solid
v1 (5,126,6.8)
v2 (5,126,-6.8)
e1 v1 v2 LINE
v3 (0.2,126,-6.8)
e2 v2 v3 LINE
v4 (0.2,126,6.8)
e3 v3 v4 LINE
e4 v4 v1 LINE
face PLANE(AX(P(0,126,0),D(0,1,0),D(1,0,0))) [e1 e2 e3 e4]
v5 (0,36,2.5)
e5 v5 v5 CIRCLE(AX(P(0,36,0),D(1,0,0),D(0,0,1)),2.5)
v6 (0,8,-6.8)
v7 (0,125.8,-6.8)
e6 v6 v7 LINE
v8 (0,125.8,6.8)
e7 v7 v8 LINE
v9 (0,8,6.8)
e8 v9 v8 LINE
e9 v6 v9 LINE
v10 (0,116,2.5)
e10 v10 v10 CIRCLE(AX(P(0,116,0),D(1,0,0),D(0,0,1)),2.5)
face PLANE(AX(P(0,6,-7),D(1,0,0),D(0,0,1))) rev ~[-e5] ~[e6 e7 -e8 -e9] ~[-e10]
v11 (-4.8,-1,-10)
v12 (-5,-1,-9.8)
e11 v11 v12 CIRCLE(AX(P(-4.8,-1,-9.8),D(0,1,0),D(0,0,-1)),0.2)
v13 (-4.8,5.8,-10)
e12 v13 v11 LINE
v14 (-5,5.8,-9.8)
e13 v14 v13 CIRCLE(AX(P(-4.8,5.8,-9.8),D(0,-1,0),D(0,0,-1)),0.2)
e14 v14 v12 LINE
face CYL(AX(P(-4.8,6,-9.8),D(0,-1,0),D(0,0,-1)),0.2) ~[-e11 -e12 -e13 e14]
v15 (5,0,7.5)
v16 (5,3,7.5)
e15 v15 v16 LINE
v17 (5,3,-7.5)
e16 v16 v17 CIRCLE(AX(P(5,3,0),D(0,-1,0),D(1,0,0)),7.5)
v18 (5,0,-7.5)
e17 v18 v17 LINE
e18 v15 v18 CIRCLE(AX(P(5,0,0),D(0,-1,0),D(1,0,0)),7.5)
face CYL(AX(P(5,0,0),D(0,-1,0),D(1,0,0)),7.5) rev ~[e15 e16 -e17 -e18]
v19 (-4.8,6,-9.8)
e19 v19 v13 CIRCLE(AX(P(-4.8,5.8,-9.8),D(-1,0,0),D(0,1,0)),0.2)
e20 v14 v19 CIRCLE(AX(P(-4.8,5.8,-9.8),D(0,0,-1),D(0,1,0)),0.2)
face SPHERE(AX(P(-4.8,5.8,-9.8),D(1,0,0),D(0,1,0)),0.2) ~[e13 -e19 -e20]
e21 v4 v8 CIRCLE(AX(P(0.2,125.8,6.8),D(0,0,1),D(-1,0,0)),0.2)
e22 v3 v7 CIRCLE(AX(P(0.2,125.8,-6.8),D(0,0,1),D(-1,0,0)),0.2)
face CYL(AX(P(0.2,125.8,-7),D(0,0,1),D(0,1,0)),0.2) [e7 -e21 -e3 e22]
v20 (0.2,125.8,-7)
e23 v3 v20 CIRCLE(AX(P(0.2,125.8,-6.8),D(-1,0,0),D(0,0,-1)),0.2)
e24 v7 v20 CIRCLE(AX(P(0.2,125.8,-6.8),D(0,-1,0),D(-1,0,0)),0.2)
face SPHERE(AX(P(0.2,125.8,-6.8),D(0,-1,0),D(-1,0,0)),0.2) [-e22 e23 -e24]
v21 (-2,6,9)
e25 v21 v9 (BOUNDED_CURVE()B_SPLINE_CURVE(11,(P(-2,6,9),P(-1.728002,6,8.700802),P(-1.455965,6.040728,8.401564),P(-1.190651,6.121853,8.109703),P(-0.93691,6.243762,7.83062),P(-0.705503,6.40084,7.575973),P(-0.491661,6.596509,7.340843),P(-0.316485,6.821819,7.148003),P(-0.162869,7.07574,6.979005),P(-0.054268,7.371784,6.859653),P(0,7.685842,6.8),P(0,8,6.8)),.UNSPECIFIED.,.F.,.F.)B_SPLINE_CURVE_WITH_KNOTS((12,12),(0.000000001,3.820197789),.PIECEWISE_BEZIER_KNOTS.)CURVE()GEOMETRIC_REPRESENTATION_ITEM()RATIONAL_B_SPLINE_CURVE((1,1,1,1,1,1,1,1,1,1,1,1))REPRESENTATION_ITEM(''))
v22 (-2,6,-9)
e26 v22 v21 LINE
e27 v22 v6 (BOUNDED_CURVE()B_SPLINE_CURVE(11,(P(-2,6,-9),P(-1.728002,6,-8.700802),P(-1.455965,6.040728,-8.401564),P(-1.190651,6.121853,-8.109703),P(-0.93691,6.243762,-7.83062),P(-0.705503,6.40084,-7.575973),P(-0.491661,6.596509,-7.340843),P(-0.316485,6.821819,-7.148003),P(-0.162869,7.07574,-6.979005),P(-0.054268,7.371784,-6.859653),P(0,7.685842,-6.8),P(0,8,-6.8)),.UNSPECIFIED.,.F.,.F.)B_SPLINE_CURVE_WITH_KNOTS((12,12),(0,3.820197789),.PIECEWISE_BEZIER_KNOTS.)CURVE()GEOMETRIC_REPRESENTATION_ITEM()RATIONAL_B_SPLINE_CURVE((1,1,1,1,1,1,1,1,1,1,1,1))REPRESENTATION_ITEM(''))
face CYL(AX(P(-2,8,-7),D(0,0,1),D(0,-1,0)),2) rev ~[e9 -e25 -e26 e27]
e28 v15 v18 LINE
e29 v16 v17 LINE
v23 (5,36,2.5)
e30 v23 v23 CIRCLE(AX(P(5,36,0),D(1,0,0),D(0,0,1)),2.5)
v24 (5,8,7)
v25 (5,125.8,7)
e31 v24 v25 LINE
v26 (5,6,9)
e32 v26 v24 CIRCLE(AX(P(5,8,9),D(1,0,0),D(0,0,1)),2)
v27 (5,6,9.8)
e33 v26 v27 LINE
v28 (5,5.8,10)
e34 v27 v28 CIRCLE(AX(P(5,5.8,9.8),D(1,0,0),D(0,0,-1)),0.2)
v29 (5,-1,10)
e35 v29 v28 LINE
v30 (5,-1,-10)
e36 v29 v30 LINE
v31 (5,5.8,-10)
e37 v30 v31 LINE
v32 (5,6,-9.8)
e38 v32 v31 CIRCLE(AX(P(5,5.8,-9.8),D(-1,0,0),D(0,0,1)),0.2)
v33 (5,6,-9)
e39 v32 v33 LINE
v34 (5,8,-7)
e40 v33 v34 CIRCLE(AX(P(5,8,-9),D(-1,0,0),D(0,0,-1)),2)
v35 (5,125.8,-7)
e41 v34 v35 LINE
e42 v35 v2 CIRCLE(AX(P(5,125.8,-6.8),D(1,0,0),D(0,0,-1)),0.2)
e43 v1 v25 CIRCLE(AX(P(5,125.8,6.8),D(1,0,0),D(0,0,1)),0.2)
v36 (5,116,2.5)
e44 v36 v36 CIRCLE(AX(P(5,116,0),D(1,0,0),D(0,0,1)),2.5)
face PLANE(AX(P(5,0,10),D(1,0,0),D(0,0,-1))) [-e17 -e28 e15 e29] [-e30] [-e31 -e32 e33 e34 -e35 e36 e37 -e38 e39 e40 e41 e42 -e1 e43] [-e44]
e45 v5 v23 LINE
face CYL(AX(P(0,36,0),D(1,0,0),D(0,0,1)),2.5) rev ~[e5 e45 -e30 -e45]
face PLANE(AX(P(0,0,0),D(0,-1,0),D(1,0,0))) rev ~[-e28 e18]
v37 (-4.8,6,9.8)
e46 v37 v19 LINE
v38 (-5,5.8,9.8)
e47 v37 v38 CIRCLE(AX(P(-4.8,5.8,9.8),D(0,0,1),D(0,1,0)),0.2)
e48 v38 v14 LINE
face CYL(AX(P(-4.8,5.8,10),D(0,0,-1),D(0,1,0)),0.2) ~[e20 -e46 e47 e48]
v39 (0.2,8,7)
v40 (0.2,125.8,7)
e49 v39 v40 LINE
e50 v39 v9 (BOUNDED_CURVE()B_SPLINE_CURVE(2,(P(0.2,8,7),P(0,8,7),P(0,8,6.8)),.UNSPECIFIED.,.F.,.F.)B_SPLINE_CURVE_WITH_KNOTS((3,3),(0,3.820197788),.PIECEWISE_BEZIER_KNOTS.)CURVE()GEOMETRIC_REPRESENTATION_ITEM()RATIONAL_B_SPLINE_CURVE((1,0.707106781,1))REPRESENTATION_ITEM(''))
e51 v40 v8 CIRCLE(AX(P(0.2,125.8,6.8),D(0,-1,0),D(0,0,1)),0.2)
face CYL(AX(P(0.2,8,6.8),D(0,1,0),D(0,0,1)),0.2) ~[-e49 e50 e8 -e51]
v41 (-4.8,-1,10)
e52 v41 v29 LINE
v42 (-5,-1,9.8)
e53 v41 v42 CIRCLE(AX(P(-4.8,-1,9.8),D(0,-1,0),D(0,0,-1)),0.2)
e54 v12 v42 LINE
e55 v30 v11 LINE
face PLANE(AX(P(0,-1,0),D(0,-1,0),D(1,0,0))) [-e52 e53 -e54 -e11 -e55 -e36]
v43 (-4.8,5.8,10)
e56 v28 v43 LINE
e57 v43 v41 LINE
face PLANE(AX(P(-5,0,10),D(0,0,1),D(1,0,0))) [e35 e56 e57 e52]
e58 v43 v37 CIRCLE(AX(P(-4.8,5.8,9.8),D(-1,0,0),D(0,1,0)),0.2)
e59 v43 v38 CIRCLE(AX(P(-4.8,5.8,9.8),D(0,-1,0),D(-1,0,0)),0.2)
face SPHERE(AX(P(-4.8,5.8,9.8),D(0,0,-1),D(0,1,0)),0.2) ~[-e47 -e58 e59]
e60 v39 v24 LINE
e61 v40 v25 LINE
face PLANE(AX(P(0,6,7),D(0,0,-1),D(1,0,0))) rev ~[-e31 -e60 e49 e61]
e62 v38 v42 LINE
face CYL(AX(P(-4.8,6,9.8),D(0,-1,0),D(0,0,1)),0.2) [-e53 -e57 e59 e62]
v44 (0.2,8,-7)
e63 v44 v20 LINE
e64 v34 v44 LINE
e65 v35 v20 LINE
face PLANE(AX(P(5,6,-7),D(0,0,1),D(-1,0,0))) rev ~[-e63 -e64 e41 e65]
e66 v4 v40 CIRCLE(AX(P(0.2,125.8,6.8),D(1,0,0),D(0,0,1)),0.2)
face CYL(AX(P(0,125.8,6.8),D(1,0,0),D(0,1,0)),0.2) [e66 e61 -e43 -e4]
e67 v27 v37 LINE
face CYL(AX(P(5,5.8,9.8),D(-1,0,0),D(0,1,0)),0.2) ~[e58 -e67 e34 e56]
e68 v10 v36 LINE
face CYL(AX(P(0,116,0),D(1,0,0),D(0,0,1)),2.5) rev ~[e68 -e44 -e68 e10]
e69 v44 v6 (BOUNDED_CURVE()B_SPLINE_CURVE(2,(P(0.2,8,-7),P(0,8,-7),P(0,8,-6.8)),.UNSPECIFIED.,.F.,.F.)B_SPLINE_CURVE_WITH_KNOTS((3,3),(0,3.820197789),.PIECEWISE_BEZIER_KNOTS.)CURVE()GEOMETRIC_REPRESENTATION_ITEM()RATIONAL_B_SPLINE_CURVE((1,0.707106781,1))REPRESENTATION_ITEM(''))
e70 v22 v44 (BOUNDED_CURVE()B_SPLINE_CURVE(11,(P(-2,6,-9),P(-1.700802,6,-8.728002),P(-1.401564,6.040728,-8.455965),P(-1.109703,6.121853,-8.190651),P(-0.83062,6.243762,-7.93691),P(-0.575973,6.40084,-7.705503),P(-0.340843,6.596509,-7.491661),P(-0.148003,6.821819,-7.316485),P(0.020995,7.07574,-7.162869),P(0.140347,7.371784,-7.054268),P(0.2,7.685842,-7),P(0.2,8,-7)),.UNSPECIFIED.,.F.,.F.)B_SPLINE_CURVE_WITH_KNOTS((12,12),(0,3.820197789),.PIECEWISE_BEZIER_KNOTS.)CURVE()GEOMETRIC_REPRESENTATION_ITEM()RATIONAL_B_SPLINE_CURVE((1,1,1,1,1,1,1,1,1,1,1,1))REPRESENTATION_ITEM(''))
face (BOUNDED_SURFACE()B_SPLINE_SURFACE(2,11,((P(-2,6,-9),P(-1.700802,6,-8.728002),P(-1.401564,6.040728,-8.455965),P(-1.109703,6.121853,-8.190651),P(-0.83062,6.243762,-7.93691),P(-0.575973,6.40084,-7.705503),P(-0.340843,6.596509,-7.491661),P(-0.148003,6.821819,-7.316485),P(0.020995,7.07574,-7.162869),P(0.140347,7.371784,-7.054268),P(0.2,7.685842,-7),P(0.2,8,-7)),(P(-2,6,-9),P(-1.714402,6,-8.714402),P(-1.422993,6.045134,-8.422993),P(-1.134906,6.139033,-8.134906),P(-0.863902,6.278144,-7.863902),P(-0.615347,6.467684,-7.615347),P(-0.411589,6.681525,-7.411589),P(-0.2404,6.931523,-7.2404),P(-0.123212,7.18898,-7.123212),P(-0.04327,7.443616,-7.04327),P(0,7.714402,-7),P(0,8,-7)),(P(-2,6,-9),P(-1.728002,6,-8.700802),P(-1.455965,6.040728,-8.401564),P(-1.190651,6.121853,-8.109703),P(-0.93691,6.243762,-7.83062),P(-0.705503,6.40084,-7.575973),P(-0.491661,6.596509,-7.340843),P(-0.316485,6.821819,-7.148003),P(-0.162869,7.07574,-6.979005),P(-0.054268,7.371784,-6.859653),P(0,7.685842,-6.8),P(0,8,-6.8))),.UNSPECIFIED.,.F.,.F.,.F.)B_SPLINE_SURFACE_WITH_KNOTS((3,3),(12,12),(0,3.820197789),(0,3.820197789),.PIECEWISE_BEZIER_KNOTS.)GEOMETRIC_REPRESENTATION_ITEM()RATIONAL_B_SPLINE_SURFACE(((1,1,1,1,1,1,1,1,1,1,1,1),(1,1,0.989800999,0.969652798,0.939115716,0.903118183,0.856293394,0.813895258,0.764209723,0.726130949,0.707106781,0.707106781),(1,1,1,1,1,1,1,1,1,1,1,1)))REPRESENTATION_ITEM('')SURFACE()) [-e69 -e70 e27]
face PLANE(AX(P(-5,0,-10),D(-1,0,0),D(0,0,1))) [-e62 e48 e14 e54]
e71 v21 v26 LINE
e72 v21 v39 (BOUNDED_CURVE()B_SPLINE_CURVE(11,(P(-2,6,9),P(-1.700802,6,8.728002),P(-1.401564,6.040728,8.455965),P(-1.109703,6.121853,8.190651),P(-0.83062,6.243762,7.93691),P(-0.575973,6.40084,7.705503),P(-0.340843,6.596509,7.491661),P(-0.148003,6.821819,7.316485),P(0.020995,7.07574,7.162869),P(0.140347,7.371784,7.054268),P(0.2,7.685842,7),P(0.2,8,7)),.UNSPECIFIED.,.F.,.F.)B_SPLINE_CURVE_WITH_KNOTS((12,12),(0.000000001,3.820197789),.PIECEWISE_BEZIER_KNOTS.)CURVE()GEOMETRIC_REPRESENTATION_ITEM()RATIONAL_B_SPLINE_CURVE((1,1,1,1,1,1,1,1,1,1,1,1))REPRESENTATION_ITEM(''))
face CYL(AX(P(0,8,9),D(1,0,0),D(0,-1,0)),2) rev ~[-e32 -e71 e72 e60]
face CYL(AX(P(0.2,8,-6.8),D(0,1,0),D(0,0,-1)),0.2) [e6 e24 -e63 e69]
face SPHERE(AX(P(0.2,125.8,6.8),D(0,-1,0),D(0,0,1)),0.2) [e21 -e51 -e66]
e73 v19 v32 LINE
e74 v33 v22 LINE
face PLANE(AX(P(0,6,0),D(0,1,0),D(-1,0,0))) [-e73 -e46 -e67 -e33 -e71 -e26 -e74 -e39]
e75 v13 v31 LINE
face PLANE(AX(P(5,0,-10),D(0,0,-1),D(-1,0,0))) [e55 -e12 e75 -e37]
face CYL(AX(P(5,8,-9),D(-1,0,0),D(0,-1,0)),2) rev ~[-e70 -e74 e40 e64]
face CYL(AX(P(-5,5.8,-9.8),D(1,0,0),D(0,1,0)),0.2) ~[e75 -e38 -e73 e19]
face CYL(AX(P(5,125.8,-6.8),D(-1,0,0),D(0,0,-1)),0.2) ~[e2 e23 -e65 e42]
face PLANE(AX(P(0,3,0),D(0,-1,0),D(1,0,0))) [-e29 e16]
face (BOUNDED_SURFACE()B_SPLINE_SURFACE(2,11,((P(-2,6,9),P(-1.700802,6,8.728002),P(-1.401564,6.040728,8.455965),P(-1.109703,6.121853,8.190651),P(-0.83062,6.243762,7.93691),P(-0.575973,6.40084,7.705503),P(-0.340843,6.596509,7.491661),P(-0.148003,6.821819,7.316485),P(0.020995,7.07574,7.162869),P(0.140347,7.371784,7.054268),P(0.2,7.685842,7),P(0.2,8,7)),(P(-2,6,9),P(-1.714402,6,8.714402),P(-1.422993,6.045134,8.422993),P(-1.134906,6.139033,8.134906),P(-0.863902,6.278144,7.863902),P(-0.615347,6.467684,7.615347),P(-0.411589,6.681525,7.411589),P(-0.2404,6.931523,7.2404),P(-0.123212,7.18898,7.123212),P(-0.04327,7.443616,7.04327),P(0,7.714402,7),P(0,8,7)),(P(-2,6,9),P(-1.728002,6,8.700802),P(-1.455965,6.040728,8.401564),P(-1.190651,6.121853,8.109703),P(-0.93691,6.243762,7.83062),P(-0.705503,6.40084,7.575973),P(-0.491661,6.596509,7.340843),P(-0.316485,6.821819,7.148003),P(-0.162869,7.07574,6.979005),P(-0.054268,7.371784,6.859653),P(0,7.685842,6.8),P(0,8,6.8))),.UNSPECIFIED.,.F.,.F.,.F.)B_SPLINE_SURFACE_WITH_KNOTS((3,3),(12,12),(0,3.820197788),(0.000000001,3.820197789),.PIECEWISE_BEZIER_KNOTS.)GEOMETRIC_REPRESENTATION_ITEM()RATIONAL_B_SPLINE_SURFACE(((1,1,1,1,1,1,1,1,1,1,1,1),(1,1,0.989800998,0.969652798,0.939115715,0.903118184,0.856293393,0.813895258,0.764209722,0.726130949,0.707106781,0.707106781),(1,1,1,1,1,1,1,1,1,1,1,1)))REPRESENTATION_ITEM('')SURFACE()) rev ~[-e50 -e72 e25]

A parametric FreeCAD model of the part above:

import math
import FreeCAD as App
import Part
import Sketcher


def edges_at(feature, points):
    """Names of the edges that pass closest to the given points."""
    edges = feature.Shape.Edges
    near = lambda p: min(range(len(edges)), key=lambda i: edges[i].distToShape(Part.Vertex(*p))[0])
    return sorted({f"Edge{near(p) + 1}" for p in points})


def add_polygon(sketch, points):
    """Adds a closed chain of lines whose ends are joined by coincident constraints."""
    first, n = sketch.GeometryCount, len(points)
    for a, b in zip(points, points[1:] + points[:1]):
        sketch.addGeometry(Part.LineSegment(App.Vector(*a, 0), App.Vector(*b, 0)), False)
    for i in range(n):
        sketch.addConstraint(Sketcher.Constraint("Coincident", first + i, 2, first + (i + 1) % n, 1))

doc = App.newDocument("Part")
params = doc.addObject("Spreadsheet::Sheet", "Params")
for row, (alias, value) in enumerate([
    ("sketch1_width", "10 mm"),
    ("sketch1_height", "20 mm"),
    ("pad1_length", "6 mm"),
    ("sketch2_radius", "7.5 mm"),
    ("pocket1_length", "3 mm"),
    ("sketch3_width", "10 mm"),
    ("sketch3_height", "20 mm"),
    ("pad2_length", "1 mm"),
    ("sketch4_width", "5 mm"),
    ("sketch4_height", "14 mm"),
    ("pad3_length", "120 mm"),
    ("fillet_radius", "2 mm"),
    ("fillet2_radius", "0.2 mm"),
    ("sketch5_diameter", "5 mm"),
    ("hole_diameter", "5 mm"),
], start=1):
    params.set(f"A{row}", alias)
    params.set(f"B{row}", "=" + value)
    params.setAlias(f"B{row}", alias)

body = doc.addObject("PartDesign::Body", "Body")

# Sketch on XZ plane
sketch1 = doc.addObject("Sketcher::SketchObject", "Sketch")
body.addObject(sketch1)
sketch1.AttachmentSupport = (doc.XZ_Plane, [""])
sketch1.MapMode = "FlatFace"
add_polygon(sketch1, [(5, -10), (-5, -10), (-5, 10), (5, 10)])  # lines 0-3
sketch1.addConstraint([
    Sketcher.Constraint("Horizontal", 0),
    Sketcher.Constraint("Vertical", 1),
    Sketcher.Constraint("Horizontal", 2),
    Sketcher.Constraint("Vertical", 3),
    Sketcher.Constraint("Symmetric", 0, 2, 2, 2, -1, 1),
    Sketcher.Constraint("DistanceX", 0, 2, 0, 1, 10.0),
    Sketcher.Constraint("DistanceY", 1, 1, 1, 2, 20.0),
])
sketch1.setExpression("Constraints[9]", "Params.sketch1_width")
sketch1.setExpression("Constraints[10]", "Params.sketch1_height")
pad1 = doc.addObject("PartDesign::Pad", "Pad")
body.addObject(pad1)
pad1.Profile = sketch1
pad1.setExpression("Length", "Params.pad1_length")
pad1.Reversed = True

# Sketch on XZ plane
sketch2 = doc.addObject("Sketcher::SketchObject", "Sketch001")
body.addObject(sketch2)
sketch2.AttachmentSupport = (doc.XZ_Plane, [""])
sketch2.MapMode = "FlatFace"
sketch2.addGeometry([
    Part.LineSegment(App.Vector(5, -8, 0), App.Vector(5, 8, 0)),
    Part.ArcOfCircle(Part.Circle(App.Vector(5, 0, 0), App.Vector(0, 0, 1), 8), math.radians(90), math.radians(270)),
], False)
sketch2.addConstraint([
    Sketcher.Constraint("Coincident", 0, 1, 1, 2),
    Sketcher.Constraint("Coincident", 1, 1, 0, 2),
    Sketcher.Constraint("Vertical", 0),
    Sketcher.Constraint("PointOnObject", 1, 3, -1),
    Sketcher.Constraint("Vertical", 1, 3, 0, 1),
    Sketcher.Constraint("Radius", 1, 7.5),
    Sketcher.Constraint("DistanceX", -1, 1, 1, 3, 5.0),
])
sketch2.setExpression("Constraints[5]", "Params.sketch2_radius")
pocket1 = doc.addObject("PartDesign::Pocket", "Pocket")
body.addObject(pocket1)
pocket1.Profile = sketch2
pocket1.setExpression("Length", "Params.pocket1_length")

# Sketch on XZ plane
sketch3 = doc.addObject("Sketcher::SketchObject", "Sketch002")
body.addObject(sketch3)
sketch3.AttachmentSupport = (doc.XZ_Plane, [""])
sketch3.MapMode = "FlatFace"
add_polygon(sketch3, [(5, 10), (-5, 10), (-5, -10), (5, -10)])  # lines 0-3
sketch3.addConstraint([
    Sketcher.Constraint("Horizontal", 0),
    Sketcher.Constraint("Vertical", 1),
    Sketcher.Constraint("Horizontal", 2),
    Sketcher.Constraint("Vertical", 3),
    Sketcher.Constraint("Symmetric", 0, 2, 2, 2, -1, 1),
    Sketcher.Constraint("DistanceX", 0, 2, 0, 1, 10.0),
    Sketcher.Constraint("DistanceY", 1, 2, 1, 1, 20.0),
])
sketch3.setExpression("Constraints[9]", "Params.sketch3_width")
sketch3.setExpression("Constraints[10]", "Params.sketch3_height")
pad2 = doc.addObject("PartDesign::Pad", "Pad001")
body.addObject(pad2)
pad2.Profile = sketch3
pad2.setExpression("Length", "Params.pad2_length")

# Sketch on XZ plane
sketch4 = doc.addObject("Sketcher::SketchObject", "Sketch003")
body.addObject(sketch4)
sketch4.AttachmentSupport = (doc.XZ_Plane, [""])
sketch4.MapMode = "FlatFace"
sketch4.AttachmentOffset = App.Placement(App.Vector(0, 0, -6), App.Rotation())
add_polygon(sketch4, [(5, 7), (5, -7), (0, -7), (0, 7)])  # lines 0-3
sketch4.addConstraint([
    Sketcher.Constraint("Vertical", 0),
    Sketcher.Constraint("Horizontal", 1),
    Sketcher.Constraint("Vertical", 2),
    Sketcher.Constraint("Horizontal", 3),
    Sketcher.Constraint("Symmetric", 1, 2, 2, 2, -1, 1),
    Sketcher.Constraint("DistanceX", 1, 2, 1, 1, 5.0),
    Sketcher.Constraint("DistanceY", 0, 2, 0, 1, 14.0),
])
sketch4.setExpression("Constraints[9]", "Params.sketch4_width")
sketch4.setExpression("Constraints[10]", "Params.sketch4_height")
pad3 = doc.addObject("PartDesign::Pad", "Pad002")
body.addObject(pad3)
pad3.Profile = sketch4
pad3.setExpression("Length", "Params.pad3_length")
pad3.Reversed = True
doc.recompute()

fillet = doc.addObject("PartDesign::Fillet", "Fillet")
body.addObject(fillet)
fillet.Base = (pad3, edges_at(pad3, [(2.5, 6, 7), (2.5, 6, -7), (0, 6, 0)]))
fillet.setExpression("Radius", "Params.fillet_radius")
doc.recompute()

fillet2 = doc.addObject("PartDesign::Fillet", "Fillet001")
body.addObject(fillet2)
fillet2.Base = (fillet, edges_at(fillet, [
    (-0.586, 6.586, -7.586),
    (0, 67, -7),
    (-0.586, 6.586, 7.586),
    (0, 67, 7),
    (2.5, 126, 7),
    (0, 126, 0),
    (2.5, 126, -7),
    (0, 6, -10),
    (-5, 6, 0),
    (0, 6, 10),
    (-5, 2.5, 10),
    (-5, 2.5, -10),
]))
fillet2.setExpression("Radius", "Params.fillet2_radius")

# Sketch on YZ plane
sketch5 = doc.addObject("Sketcher::SketchObject", "Sketch004")
body.addObject(sketch5)
sketch5.AttachmentSupport = (doc.YZ_Plane, [""])
sketch5.MapMode = "FlatFace"
sketch5.addGeometry([
    Part.Circle(App.Vector(36, 0, 0), App.Vector(0, 0, 1), 2.5),
    Part.Circle(App.Vector(116, 0, 0), App.Vector(0, 0, 1), 2.5),
], False)
sketch5.addConstraint([
    Sketcher.Constraint("Equal", 0, 1),
    Sketcher.Constraint("PointOnObject", 0, 3, -1),
    Sketcher.Constraint("PointOnObject", 1, 3, -1),
    Sketcher.Constraint("Diameter", 0, 5.0),
    Sketcher.Constraint("DistanceX", -1, 1, 0, 3, 36.0),
    Sketcher.Constraint("DistanceX", -1, 1, 1, 3, 116.0),
])
sketch5.setExpression("Constraints[3]", "Params.sketch5_diameter")
doc.recompute()
hole = doc.addObject("PartDesign::Hole", "Hole")
body.addObject(hole)
hole.Profile = sketch5
hole.ThreadType = "None"
hole.setExpression("Diameter", "Params.hole_diameter")
hole.DepthType = "ThroughAll"
hole.Reversed = True

doc.recompute()
